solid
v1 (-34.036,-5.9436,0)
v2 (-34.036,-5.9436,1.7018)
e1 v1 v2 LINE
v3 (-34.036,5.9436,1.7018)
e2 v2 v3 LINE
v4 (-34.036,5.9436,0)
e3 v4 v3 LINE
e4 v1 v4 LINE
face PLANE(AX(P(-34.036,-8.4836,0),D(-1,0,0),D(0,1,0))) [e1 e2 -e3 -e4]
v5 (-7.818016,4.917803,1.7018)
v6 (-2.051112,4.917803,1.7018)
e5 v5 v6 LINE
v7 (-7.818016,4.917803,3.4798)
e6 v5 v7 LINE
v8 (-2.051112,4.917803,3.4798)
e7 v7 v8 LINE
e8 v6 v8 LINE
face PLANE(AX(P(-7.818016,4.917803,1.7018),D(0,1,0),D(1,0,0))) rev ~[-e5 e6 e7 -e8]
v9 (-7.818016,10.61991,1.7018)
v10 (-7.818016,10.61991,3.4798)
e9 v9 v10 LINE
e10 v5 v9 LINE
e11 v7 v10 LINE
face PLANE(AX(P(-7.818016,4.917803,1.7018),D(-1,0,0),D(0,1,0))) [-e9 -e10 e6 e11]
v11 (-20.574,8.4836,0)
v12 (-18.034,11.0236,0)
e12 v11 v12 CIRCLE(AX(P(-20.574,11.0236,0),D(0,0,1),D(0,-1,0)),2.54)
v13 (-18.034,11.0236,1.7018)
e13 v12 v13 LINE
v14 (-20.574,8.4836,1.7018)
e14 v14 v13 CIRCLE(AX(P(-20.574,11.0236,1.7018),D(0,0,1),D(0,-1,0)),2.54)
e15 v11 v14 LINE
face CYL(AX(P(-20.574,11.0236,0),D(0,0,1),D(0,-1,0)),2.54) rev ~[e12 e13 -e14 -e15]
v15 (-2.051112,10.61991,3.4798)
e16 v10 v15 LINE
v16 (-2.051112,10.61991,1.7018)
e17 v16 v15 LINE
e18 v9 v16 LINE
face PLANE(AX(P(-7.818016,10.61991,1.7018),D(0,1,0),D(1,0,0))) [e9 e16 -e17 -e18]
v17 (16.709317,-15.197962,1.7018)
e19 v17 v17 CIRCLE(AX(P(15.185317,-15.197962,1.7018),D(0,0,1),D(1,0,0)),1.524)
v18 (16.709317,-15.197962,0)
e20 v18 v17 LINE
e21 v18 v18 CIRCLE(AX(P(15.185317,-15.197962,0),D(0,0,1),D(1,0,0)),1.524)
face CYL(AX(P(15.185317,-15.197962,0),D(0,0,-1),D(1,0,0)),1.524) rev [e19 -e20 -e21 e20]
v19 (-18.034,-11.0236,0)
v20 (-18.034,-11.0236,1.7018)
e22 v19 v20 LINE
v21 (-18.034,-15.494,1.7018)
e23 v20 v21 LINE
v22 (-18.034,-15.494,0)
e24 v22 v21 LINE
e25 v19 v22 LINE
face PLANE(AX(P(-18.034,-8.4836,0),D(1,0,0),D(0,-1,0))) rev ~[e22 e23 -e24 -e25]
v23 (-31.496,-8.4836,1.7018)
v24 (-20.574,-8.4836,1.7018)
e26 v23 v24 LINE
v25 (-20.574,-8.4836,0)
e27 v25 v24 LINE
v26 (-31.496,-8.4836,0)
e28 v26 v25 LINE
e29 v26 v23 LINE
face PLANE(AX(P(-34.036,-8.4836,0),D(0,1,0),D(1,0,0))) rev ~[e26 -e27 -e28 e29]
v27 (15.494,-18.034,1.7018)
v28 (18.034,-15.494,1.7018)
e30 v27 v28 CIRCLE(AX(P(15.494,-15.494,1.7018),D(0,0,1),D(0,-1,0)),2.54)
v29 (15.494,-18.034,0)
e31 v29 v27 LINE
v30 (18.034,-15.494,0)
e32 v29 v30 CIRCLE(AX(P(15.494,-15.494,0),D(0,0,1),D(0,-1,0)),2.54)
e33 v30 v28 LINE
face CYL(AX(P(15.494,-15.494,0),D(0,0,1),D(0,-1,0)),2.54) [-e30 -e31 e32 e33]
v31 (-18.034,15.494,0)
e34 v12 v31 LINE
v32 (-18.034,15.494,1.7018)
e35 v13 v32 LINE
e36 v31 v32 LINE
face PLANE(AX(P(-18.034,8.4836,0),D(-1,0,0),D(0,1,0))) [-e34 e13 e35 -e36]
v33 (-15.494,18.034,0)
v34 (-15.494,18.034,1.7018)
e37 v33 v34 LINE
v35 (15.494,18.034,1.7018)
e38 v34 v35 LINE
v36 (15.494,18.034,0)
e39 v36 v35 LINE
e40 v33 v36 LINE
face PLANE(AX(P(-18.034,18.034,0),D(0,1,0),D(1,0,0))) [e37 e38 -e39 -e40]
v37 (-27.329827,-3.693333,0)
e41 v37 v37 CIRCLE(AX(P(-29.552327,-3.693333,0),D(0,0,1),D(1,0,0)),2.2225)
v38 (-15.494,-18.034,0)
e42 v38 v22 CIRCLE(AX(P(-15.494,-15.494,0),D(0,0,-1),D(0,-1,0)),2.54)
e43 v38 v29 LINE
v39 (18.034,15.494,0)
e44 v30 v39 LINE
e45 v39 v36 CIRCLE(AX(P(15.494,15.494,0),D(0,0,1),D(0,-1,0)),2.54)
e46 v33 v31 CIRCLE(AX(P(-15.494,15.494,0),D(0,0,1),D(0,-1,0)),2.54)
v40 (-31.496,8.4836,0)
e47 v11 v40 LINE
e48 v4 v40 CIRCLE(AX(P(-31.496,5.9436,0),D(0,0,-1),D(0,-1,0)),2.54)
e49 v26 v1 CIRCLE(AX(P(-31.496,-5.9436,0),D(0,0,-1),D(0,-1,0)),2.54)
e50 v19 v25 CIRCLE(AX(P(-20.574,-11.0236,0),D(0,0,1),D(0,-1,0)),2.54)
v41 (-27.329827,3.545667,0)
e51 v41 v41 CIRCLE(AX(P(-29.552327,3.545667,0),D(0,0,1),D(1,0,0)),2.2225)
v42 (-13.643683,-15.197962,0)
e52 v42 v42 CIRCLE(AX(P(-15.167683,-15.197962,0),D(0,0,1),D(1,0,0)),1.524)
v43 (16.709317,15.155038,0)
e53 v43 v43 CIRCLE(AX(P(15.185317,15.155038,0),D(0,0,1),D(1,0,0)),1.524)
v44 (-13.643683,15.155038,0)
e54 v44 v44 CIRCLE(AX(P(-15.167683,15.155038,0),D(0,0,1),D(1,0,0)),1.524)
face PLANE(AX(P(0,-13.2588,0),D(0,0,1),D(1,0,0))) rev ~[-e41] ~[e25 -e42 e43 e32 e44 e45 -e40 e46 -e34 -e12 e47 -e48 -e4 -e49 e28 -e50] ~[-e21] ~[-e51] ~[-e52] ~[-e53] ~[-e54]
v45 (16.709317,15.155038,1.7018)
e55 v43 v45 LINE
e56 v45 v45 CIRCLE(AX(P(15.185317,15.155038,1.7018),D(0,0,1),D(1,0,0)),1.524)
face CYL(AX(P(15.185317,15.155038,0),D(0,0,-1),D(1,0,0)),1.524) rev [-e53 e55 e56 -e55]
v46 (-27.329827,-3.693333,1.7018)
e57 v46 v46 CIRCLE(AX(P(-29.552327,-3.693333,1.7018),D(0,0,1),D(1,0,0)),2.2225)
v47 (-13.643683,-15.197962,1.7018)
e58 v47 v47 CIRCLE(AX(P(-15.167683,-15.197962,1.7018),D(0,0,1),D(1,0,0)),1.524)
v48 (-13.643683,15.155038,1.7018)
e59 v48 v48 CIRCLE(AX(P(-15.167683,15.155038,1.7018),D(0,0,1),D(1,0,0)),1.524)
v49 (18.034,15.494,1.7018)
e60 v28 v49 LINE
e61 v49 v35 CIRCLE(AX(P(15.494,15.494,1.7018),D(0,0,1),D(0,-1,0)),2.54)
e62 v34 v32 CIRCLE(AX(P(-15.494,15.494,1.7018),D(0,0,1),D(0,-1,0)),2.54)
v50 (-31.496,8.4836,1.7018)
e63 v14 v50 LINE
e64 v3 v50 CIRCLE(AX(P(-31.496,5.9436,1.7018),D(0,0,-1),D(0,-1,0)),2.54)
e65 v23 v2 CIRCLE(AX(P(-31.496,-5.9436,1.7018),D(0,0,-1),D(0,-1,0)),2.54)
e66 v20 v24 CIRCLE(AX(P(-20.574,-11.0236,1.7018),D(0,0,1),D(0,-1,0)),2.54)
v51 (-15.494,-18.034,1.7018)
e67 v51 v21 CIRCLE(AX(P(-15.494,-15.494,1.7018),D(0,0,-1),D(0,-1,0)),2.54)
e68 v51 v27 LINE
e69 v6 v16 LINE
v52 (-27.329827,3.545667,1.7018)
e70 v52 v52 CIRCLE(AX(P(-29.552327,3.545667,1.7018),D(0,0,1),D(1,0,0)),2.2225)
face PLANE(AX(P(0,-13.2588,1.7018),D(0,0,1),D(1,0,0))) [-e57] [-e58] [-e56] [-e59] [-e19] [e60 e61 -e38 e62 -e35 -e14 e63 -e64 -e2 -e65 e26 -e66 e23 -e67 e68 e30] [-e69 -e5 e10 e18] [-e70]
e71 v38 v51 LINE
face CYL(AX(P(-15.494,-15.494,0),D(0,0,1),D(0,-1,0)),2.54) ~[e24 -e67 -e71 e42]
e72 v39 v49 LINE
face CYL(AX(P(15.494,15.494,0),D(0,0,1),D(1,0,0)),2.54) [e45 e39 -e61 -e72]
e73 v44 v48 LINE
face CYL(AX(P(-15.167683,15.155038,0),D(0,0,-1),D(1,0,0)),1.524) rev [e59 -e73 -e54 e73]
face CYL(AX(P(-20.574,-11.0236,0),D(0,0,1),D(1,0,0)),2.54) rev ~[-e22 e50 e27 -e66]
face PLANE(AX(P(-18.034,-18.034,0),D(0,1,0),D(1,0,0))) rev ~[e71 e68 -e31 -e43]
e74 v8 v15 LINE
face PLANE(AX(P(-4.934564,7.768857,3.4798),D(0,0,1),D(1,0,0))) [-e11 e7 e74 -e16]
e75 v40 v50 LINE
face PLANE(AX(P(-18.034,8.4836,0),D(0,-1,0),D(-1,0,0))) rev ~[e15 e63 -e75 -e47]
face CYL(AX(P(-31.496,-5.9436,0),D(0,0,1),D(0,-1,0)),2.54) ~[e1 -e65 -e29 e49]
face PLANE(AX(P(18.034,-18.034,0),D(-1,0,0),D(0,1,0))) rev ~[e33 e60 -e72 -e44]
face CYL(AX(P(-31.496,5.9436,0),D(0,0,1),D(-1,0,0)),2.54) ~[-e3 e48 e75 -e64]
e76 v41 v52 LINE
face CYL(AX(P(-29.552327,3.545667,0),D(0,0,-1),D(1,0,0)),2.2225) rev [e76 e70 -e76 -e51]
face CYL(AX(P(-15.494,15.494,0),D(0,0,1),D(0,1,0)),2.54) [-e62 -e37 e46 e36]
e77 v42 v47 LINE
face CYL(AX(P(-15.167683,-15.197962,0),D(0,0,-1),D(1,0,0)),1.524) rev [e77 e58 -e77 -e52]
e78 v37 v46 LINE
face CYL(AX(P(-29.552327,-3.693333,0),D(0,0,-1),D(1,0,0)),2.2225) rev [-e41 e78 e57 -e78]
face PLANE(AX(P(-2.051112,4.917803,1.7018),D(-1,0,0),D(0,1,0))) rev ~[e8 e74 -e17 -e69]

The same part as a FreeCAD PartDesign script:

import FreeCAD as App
import Part
import Sketcher
from FreeCAD import Vector
Q = App.Units.Quantity


def edges_at(feature, points):
    """Names of the edges that pass closest to the given points."""
    edges = feature.Shape.Edges
    near = lambda p: min(range(len(edges)), key=lambda i: edges[i].distToShape(Part.Vertex(*p))[0])
    return sorted({f"Edge{near(p) + 1}" for p in points})


def add_polygon(sketch, points):
    """Adds a closed chain of lines whose ends are joined by coincident constraints."""
    first, n = sketch.GeometryCount, len(points)
    for a, b in zip(points, points[1:] + points[:1]):
        sketch.addGeometry(Part.LineSegment(App.Vector(*a, 0), App.Vector(*b, 0)), False)
    for i in range(n):
        sketch.addConstraint(Sketcher.Constraint("Coincident", first + i, 2, first + (i + 1) % n, 1))

doc = App.newDocument("Part")
params = doc.addObject("Spreadsheet::Sheet", "Params")
for row, (alias, value) in enumerate([
    ("sketch1_diameter", "0.12 in"),
    ("sketch1_diameter2", "0.175 in"),
    ("sketch1_width", "1.42 in"),
    ("sketch1_width2", "0.63 in"),
    ("sketch1_height", "0.376 in"),
    ("pad1_length", "0.067 in"),
    ("fillet_radius", "0.1 in"),
    ("fillet2_radius", "0.1 in"),
    ("pad2_length", "0.07 in"),
], start=1):
    params.set(f"A{row}", alias)
    params.set(f"B{row}", "=" + value)
    params.setAlias(f"B{row}", alias)

body = doc.addObject("PartDesign::Body", "Body")

# Sketch on XY plane
sketch1 = body.newObject("Sketcher::SketchObject", "Sketch")
sketch1.AttachmentSupport = (doc.getObject("XY_Plane"), [""])
sketch1.MapMode = "FlatFace"
add_polygon(sketch1, [(-18, -18), (18, -18), (18, 18), (-18, 18), (-18, 8.5), (-34, 8.5), (-34, -8.5), (-18, -8.5)])  # lines 0-7
sketch1.addGeometry(Part.Circle(Vector(-15.2, -15.2, 0), Vector(0, 0, 1), 1.5), False)  # 8
sketch1.addGeometry(Part.Circle(Vector(-29.6, -3.7, 0), Vector(0, 0, 1), 2.2), False)  # 9
sketch1.addGeometry(Part.Circle(Vector(15.2, -15.2, 0), Vector(0, 0, 1), 1.5), False)  # 10
sketch1.addGeometry(Part.Circle(Vector(-29.6, 3.5, 0), Vector(0, 0, 1), 2.2), False)  # 11
sketch1.addGeometry(Part.Circle(Vector(-15.2, 15.2, 0), Vector(0, 0, 1), 1.5), False)  # 12
sketch1.addGeometry(Part.Circle(Vector(15.2, 15.2, 0), Vector(0, 0, 1), 1.5), False)  # 13
sketch1.addConstraint(Sketcher.Constraint("Horizontal", 0))
sketch1.addConstraint(Sketcher.Constraint("Vertical", 1))
sketch1.addConstraint(Sketcher.Constraint("Horizontal", 2))
sketch1.addConstraint(Sketcher.Constraint("Vertical", 3))
sketch1.addConstraint(Sketcher.Constraint("Horizontal", 4))
sketch1.addConstraint(Sketcher.Constraint("Vertical", 5))
sketch1.addConstraint(Sketcher.Constraint("Horizontal", 6))
sketch1.addConstraint(Sketcher.Constraint("Vertical", 7))
sketch1.addConstraint(Sketcher.Constraint("Equal", 8, 10))
sketch1.addConstraint(Sketcher.Constraint("Equal", 9, 11))
sketch1.addConstraint(Sketcher.Constraint("Equal", 10, 12))
sketch1.addConstraint(Sketcher.Constraint("Equal", 12, 13))
sketch1.addConstraint(Sketcher.Constraint("Symmetric", 0, 2, 2, 2, -1, 1))
sketch1.addConstraint(Sketcher.Constraint("Symmetric", 3, 2, 6, 2, -1))
sketch1.addConstraint(Sketcher.Constraint("Horizontal", 8, 3, 10, 3))
sketch1.addConstraint(Sketcher.Constraint("Horizontal", 12, 3, 13, 3))
sketch1.addConstraint(Sketcher.Constraint("Vertical", 9, 3, 11, 3))
sketch1.addConstraint(Sketcher.Constraint("Vertical", 8, 3, 12, 3))
sketch1.addConstraint(Sketcher.Constraint("Vertical", 10, 3, 13, 3))
sketch1.addConstraint(Sketcher.Constraint("Equal", 2, 1))
sketch1.addConstraint(Sketcher.Constraint("Diameter", 8, Q("0.12 in")))
sketch1.addConstraint(Sketcher.Constraint("Diameter", 9, Q("0.175 in")))
sketch1.addConstraint(Sketcher.Constraint("DistanceX", 0, 1, 0, 2, Q("1.42 in")))
sketch1.addConstraint(Sketcher.Constraint("DistanceX", 4, 2, 4, 1, Q("0.63 in")))
sketch1.addConstraint(Sketcher.Constraint("DistanceY", 3, 2, 3, 1, Q("0.376 in")))
sketch1.addConstraint(Sketcher.Constraint("DistanceX", 8, 3, 10, 3, Q("1.195 in")))
sketch1.addConstraint(Sketcher.Constraint("DistanceY", 9, 3, 11, 3, Q("0.285 in")))
sketch1.addConstraint(Sketcher.Constraint("DistanceY", 8, 3, 12, 3, Q("1.195 in")))
sketch1.addConstraint(Sketcher.Constraint("DistanceY", 8, 3, 9, 3, 11.504629))
sketch1.addConstraint(Sketcher.Constraint("DistanceY", 13, 3, 1, 2, 2.878962))
sketch1.addConstraint(Sketcher.Constraint("DistanceX", 8, 3, -1, 1, 15.167683))
sketch1.addConstraint(Sketcher.Constraint("DistanceX", 9, 3, -1, 1, 29.552327))
sketch1.setExpression("Constraints[28]", "Params.sketch1_diameter")
sketch1.setExpression("Constraints[29]", "Params.sketch1_diameter2")
sketch1.setExpression("Constraints[30]", "Params.sketch1_width")
sketch1.setExpression("Constraints[31]", "Params.sketch1_width2")
sketch1.setExpression("Constraints[32]", "Params.sketch1_height")
pad1 = body.newObject("PartDesign::Pad", "Pad")
pad1.Profile = sketch1
pad1.setExpression("Length", "Params.pad1_length")
doc.recompute()

fillet = body.newObject("PartDesign::Fillet", "Fillet")
fillet.Base = (pad1, edges_at(pad1, [
    (-18.034, 18.034, 0.851),
    (-18.034, -18.034, 0.851),
    (18.034, -18.034, 0.851),
    (18.034, 18.034, 0.851),
]))
fillet.setExpression("Radius", "Params.fillet_radius")
doc.recompute()

fillet2 = body.newObject("PartDesign::Fillet", "Fillet001")
fillet2.Base = (fillet, edges_at(fillet, [
    (-18.034, 8.484, 0.851),
    (-18.034, -8.484, 0.851),
    (-34.036, -8.484, 0.851),
    (-34.036, 8.484, 0.851),
]))
fillet2.setExpression("Radius", "Params.fillet2_radius")

# Sketch on XY plane
sketch2 = body.newObject("Sketcher::SketchObject", "Sketch001")
sketch2.AttachmentSupport = (doc.getObject("XY_Plane"), [""])
sketch2.MapMode = "FlatFace"
sketch2.AttachmentOffset = App.Placement(Vector(0, 0, 0.067 * 25.4), App.Rotation())
add_polygon(sketch2, [(-8, 11), (-8, 5), (-2, 5), (-2, 11)])  # lines 0-3
sketch2.addConstraint(Sketcher.Constraint("Vertical", 0))
sketch2.addConstraint(Sketcher.Constraint("Horizontal", 1))
sketch2.addConstraint(Sketcher.Constraint("Vertical", 2))
sketch2.addConstraint(Sketcher.Constraint("Horizontal", 3))
sketch2.addConstraint(Sketcher.Constraint("DistanceX", 1, 1, 1, 2, 5.766904))
sketch2.addConstraint(Sketcher.Constraint("DistanceY", 0, 2, 0, 1, 5.702107))
sketch2.addConstraint(Sketcher.Constraint("DistanceX", 1, 2, -1, 1, 2.051112))
sketch2.addConstraint(Sketcher.Constraint("DistanceY", -1, 1, 2, 2, 10.61991))
pad2 = body.newObject("PartDesign::Pad", "Pad001")
pad2.Profile = sketch2
pad2.setExpression("Length", "Params.pad2_length")

doc.recompute()
